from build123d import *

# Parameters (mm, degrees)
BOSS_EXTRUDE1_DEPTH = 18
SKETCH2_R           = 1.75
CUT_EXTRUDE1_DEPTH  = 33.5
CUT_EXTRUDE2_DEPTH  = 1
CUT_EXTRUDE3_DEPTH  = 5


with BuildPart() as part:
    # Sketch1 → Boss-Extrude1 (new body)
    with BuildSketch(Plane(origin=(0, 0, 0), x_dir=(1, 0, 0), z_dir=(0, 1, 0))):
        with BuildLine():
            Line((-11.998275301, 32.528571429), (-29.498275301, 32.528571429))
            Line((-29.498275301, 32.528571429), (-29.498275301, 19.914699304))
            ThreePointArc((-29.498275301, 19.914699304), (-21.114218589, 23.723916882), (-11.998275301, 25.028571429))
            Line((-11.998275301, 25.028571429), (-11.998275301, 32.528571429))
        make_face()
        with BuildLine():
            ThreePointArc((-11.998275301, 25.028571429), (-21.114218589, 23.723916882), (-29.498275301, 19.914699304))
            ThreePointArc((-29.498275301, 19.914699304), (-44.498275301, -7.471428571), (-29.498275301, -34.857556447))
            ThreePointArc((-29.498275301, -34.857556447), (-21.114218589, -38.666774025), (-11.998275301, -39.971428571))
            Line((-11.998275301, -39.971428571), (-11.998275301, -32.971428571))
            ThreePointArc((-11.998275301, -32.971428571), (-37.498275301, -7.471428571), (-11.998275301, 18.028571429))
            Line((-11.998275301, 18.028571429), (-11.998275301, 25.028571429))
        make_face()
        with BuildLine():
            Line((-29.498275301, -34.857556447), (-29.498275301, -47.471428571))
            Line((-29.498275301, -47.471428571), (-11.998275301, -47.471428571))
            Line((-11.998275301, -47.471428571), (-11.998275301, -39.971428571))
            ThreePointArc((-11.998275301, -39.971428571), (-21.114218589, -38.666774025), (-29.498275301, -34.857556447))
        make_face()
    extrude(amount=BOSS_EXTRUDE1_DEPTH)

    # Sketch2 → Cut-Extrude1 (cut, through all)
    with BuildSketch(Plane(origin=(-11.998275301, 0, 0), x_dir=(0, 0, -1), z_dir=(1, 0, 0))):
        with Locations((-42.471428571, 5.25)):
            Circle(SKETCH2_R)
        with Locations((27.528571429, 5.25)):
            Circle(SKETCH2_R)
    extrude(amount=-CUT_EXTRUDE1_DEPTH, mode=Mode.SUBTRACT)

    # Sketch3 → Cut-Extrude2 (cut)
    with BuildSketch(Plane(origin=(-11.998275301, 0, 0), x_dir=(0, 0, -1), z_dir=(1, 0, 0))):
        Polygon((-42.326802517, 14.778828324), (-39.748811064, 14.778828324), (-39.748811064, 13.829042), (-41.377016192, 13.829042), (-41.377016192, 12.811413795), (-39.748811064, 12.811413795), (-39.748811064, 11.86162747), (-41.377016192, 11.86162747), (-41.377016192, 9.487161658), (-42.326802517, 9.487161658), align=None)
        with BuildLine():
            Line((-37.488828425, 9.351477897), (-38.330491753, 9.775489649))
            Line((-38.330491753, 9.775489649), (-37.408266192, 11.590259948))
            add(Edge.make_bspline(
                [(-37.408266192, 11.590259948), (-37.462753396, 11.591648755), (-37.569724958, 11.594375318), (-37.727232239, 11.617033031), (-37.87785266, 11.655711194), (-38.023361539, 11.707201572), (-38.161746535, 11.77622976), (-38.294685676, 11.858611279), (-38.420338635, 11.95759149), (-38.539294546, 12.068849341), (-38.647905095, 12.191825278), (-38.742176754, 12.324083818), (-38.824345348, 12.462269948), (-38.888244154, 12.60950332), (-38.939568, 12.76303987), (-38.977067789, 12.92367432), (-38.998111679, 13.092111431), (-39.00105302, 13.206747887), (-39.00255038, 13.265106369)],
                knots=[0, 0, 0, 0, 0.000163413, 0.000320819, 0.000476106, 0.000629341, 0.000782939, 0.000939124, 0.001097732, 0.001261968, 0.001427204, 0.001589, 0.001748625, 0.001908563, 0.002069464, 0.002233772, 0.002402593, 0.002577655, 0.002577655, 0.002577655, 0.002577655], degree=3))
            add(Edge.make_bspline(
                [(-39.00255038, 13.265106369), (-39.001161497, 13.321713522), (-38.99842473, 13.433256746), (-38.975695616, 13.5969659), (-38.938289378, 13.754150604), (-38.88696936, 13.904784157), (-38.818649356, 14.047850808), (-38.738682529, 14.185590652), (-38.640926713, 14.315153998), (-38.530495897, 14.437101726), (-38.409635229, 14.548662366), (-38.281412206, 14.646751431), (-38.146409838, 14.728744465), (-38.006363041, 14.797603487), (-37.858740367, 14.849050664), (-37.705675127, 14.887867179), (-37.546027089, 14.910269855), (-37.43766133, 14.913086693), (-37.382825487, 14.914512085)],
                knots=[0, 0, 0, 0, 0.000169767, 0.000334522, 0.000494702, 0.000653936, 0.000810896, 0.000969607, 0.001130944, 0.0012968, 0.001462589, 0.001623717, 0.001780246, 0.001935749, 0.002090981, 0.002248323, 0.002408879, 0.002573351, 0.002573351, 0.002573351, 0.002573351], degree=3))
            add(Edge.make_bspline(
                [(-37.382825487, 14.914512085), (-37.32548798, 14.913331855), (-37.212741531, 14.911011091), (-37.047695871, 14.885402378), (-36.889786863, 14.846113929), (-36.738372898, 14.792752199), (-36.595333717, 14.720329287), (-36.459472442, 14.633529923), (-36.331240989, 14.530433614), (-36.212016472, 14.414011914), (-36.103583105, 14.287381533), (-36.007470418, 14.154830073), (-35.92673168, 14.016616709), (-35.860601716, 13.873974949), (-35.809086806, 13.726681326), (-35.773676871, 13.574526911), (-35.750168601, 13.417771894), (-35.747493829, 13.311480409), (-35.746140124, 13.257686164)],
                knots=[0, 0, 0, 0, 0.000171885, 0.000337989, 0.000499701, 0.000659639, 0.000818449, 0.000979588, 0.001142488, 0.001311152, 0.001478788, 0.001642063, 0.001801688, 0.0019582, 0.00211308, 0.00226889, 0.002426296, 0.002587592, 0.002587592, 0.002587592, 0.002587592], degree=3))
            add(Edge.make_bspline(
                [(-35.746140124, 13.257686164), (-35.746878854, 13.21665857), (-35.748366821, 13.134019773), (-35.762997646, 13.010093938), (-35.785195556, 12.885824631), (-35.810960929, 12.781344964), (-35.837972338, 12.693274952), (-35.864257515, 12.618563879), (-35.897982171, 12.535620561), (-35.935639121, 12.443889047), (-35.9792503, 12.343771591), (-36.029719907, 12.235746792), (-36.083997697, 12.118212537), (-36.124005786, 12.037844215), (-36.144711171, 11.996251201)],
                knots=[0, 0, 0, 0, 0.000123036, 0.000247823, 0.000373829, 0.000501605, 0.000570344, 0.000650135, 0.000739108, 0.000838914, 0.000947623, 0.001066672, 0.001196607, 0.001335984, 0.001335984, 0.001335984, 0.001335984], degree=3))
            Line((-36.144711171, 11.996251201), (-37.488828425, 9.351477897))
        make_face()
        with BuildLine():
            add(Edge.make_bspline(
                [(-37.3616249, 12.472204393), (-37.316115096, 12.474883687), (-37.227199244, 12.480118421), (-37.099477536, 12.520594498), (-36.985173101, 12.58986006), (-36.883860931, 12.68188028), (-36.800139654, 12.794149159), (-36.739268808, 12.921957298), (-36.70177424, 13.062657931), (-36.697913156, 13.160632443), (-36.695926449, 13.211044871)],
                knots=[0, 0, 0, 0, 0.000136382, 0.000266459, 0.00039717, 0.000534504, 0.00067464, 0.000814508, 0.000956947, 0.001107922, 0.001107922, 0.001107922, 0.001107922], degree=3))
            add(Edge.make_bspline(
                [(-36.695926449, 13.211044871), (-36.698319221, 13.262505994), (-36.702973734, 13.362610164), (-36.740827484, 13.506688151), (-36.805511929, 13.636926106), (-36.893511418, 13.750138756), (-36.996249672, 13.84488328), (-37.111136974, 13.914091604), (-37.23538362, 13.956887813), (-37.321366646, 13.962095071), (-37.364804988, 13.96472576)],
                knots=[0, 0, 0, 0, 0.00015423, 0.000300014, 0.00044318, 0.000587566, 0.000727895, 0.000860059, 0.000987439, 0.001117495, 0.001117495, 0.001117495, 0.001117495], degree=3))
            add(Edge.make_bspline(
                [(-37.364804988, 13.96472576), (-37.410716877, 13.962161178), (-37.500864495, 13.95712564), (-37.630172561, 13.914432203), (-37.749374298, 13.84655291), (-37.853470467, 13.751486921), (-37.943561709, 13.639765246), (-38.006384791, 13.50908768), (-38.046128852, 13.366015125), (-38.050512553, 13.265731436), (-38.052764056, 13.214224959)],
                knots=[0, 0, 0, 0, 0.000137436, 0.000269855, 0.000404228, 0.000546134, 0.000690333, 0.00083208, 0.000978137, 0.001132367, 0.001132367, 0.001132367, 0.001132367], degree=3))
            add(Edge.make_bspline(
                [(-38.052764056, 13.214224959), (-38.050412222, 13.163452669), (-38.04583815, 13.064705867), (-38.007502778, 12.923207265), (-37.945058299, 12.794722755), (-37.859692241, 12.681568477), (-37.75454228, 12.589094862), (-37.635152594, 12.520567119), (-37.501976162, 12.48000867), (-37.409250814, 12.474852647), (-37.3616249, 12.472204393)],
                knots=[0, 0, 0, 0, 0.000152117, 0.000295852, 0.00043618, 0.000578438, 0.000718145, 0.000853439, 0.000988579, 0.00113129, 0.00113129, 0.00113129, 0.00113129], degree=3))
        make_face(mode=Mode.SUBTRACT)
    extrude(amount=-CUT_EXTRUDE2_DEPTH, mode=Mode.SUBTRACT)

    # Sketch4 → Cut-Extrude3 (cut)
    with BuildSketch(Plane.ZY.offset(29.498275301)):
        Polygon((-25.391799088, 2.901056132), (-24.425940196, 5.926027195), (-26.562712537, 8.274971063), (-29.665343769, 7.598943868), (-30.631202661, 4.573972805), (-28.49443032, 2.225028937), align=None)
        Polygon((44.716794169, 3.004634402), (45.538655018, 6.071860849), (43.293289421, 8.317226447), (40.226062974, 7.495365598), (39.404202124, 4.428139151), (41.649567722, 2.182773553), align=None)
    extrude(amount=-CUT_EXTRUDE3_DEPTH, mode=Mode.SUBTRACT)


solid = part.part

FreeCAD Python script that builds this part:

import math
import FreeCAD as App
import Part
import Sketcher
from FreeCAD import Vector
Q = App.Units.Quantity

doc = App.newDocument("Part")
body = doc.addObject("PartDesign::Body", "Body")

# Sketch on XZ plane
sketch1 = doc.addObject("Sketcher::SketchObject", "Sketch")
body.addObject(sketch1)
sketch1.AttachmentSupport = (doc.XZ_Plane, [""])
sketch1.MapMode = "FlatFace"
sketch1.addGeometry([
    Part.LineSegment(Vector(-12, -33, 0), Vector(-29, -33, 0)),  # 0
    Part.LineSegment(Vector(-29, -33, 0), Vector(-29, -20, 0)),  # 1
    Part.ArcOfCircle(Part.Circle(Vector(-12, 7, 0), Vector(0, 0, 1), 32), math.radians(123), math.radians(237)),  # 2
    Part.LineSegment(Vector(-29, 35, 0), Vector(-29, 47, 0)),  # 3
    Part.LineSegment(Vector(-29, 47, 0), Vector(-12, 47, 0)),  # 4
    Part.LineSegment(Vector(-12, 47, 0), Vector(-12, 33, 0)),  # 5
    Part.ArcOfCircle(Part.Circle(Vector(-12, 7, 0), Vector(0, 0, 1), 26), math.radians(90), math.radians(270)),  # 6
    Part.LineSegment(Vector(-12, -18, 0), Vector(-12, -33, 0)),  # 7
], False)
sketch1.addConstraint([
    Sketcher.Constraint("Coincident", 0, 2, 1, 1),
    Sketcher.Constraint("Coincident", 1, 2, 2, 2),
    Sketcher.Constraint("Coincident", 2, 1, 3, 1),
    Sketcher.Constraint("Coincident", 3, 2, 4, 1),
    Sketcher.Constraint("Coincident", 4, 2, 5, 1),
    Sketcher.Constraint("Coincident", 5, 2, 6, 1),
    Sketcher.Constraint("Coincident", 6, 2, 7, 1),
    Sketcher.Constraint("Coincident", 7, 2, 0, 1),
    Sketcher.Constraint("Horizontal", 0),
    Sketcher.Constraint("Vertical", 1),
    Sketcher.Constraint("Vertical", 3),
    Sketcher.Constraint("Horizontal", 4),
    Sketcher.Constraint("Vertical", 5),
    Sketcher.Constraint("Vertical", 7),
    Sketcher.Constraint("Coincident", 6, 3, 2, 3),
    Sketcher.Constraint("Vertical", 1, 2, 2, 1),
    Sketcher.Constraint("Vertical", 6, 3, 4, 2),
    Sketcher.Constraint("Vertical", 5, 2, 6, 2),
    Sketcher.Constraint("Equal", 1, 3),
    Sketcher.Constraint("Radius", 2, Q("32.5 mm")),
    Sketcher.Constraint("Radius", 6, Q("25.5 mm")),
    Sketcher.Constraint("DistanceX", 0, 2, 0, 1, Q("17.5 mm")),
    Sketcher.Constraint("DistanceY", 5, 2, 5, 1, Q("14.5 mm")),
    Sketcher.Constraint("DistanceY", 1, 2, -1, 1, Q("19.914699 mm")),
    Sketcher.Constraint("DistanceX", 2, 3, -1, 1, Q("11.998275 mm")),
])
pad1 = doc.addObject("PartDesign::Pad", "Pad")
body.addObject(pad1)
pad1.Profile = sketch1
pad1.Length = 18
pad1.Reversed = True

# Sketch on YZ plane
sketch2 = doc.addObject("Sketcher::SketchObject", "Sketch001")
body.addObject(sketch2)
sketch2.AttachmentSupport = (doc.YZ_Plane, [""])
sketch2.MapMode = "FlatFace"
sketch2.AttachmentOffset = App.Placement(Vector(0, 0, -11.998275), App.Rotation())
sketch2.addGeometry([
    Part.Circle(Vector(5.2, 42.5, 0), Vector(0, 0, 1), 1.8),
    Part.Circle(Vector(5.2, -27.5, 0), Vector(0, 0, 1), 1.8),
], False)
sketch2.addConstraint([
    Sketcher.Constraint("Equal", 0, 1),
    Sketcher.Constraint("Vertical", 0, 3, 1, 3),
    Sketcher.Constraint("Diameter", 0, Q("3.5 mm")),
    Sketcher.Constraint("DistanceY", 1, 3, 0, 3, Q("70 mm")),
    Sketcher.Constraint("DistanceX", -1, 1, 0, 3, Q("5.25 mm")),
    Sketcher.Constraint("DistanceY", -1, 1, 0, 3, Q("42.471429 mm")),
])
pocket1 = doc.addObject("PartDesign::Pocket", "Pocket")
body.addObject(pocket1)
pocket1.Profile = sketch2
pocket1.Type = "ThroughAll"

# Sketch on YZ plane
sketch3 = doc.addObject("Sketcher::SketchObject", "Sketch002")
body.addObject(sketch3)
sketch3.AttachmentSupport = (doc.YZ_Plane, [""])
sketch3.MapMode = "FlatFace"
sketch3.AttachmentOffset = App.Placement(Vector(0, 0, -11.998275), App.Rotation())
sketch3.addGeometry([
    Part.LineSegment(Vector(14.778828, 39.748811, 0), Vector(14.778828, 42.326803, 0)),  # 0
    Part.LineSegment(Vector(14.778828, 42.326803, 0), Vector(9.487162, 42.326803, 0)),  # 1
    Part.LineSegment(Vector(9.487162, 42.326803, 0), Vector(9.487162, 41.377016, 0)),  # 2
    Part.LineSegment(Vector(9.487162, 41.377016, 0), Vector(11.861627, 41.377016, 0)),  # 3
    Part.LineSegment(Vector(11.861627, 41.377016, 0), Vector(11.861627, 39.748811, 0)),  # 4
    Part.LineSegment(Vector(11.861627, 39.748811, 0), Vector(12.811414, 39.748811, 0)),  # 5
    Part.LineSegment(Vector(12.811414, 39.748811, 0), Vector(12.811414, 41.377016, 0)),  # 6
    Part.LineSegment(Vector(12.811414, 41.377016, 0), Vector(13.829042, 41.377016, 0)),  # 7
    Part.LineSegment(Vector(13.829042, 41.377016, 0), Vector(13.829042, 39.748811, 0)),  # 8
    Part.LineSegment(Vector(13.829042, 39.748811, 0), Vector(14.778828, 39.748811, 0)),  # 9
    Part.LineSegment(Vector(9.77549, 38.330492, 0), Vector(9.351478, 37.488828, 0)),  # 10
    Part.LineSegment(Vector(9.351478, 37.488828, 0), Vector(11.996251, 36.144711, 0)),  # 11
    Part.BSplineCurve([Vector(13.257686, 35.74614, 0), Vector(13.216659, 35.746879, 0), Vector(13.13402, 35.748367, 0), Vector(13.010094, 35.762998, 0), Vector(12.885825, 35.785196, 0), Vector(12.781345, 35.810961, 0), Vector(12.693275, 35.837972, 0), Vector(12.618564, 35.864258, 0), Vector(12.535621, 35.897982, 0), Vector(12.443889, 35.935639, 0), Vector(12.343772, 35.97925, 0), Vector(12.235747, 36.02972, 0), Vector(12.118213, 36.083998, 0), Vector(12.037844, 36.124006, 0), Vector(11.996251, 36.144711, 0)], [4, 1, 1, 1, 1, 1, 1, 1, 1, 1, 1, 1, 4], [0, 0.000123036, 0.000247823, 0.000373829, 0.000501605, 0.000570344, 0.000650135, 0.000739108, 0.000838914, 0.000947623, 0.001066672, 0.001196607, 0.001335984], False, 3, [1, 1, 1, 1, 1, 1, 1, 1, 1, 1, 1, 1, 1, 1, 1], False),  # 12
    Part.BSplineCurve([Vector(14.914512, 37.382825, 0), Vector(14.913332, 37.325488, 0), Vector(14.911011, 37.212742, 0), Vector(14.885402, 37.047696, 0), Vector(14.846114, 36.889787, 0), Vector(14.792752, 36.738373, 0), Vector(14.720329, 36.595334, 0), Vector(14.63353, 36.459472, 0), Vector(14.530434, 36.331241, 0), Vector(14.414012, 36.212016, 0), Vector(14.287382, 36.103583, 0), Vector(14.15483, 36.00747, 0), Vector(14.016617, 35.926732, 0), Vector(13.873975, 35.860602, 0), Vector(13.726681, 35.809087, 0), Vector(13.574527, 35.773677, 0), Vector(13.417772, 35.750169, 0), Vector(13.31148, 35.747494, 0), Vector(13.257686, 35.74614, 0)], [4, 1, 1, 1, 1, 1, 1, 1, 1, 1, 1, 1, 1, 1, 1, 1, 4], [0, 0.000171885, 0.000337989, 0.000499701, 0.000659639, 0.000818449, 0.000979588, 0.001142488, 0.001311152, 0.001478788, 0.001642063, 0.001801688, 0.0019582, 0.00211308, 0.00226889, 0.002426296, 0.002587592], False, 3, [1, 1, 1, 1, 1, 1, 1, 1, 1, 1, 1, 1, 1, 1, 1, 1, 1, 1, 1], False),  # 13
    Part.BSplineCurve([Vector(13.265106, 39.00255, 0), Vector(13.321714, 39.001161, 0), Vector(13.433257, 38.998425, 0), Vector(13.596966, 38.975696, 0), Vector(13.754151, 38.938289, 0), Vector(13.904784, 38.886969, 0), Vector(14.047851, 38.818649, 0), Vector(14.185591, 38.738683, 0), Vector(14.315154, 38.640927, 0), Vector(14.437102, 38.530496, 0), Vector(14.548662, 38.409635, 0), Vector(14.646751, 38.281412, 0), Vector(14.728744, 38.14641, 0), Vector(14.797603, 38.006363, 0), Vector(14.849051, 37.85874, 0), Vector(14.887867, 37.705675, 0), Vector(14.91027, 37.546027, 0), Vector(14.913087, 37.437661, 0), Vector(14.914512, 37.382825, 0)], [4, 1, 1, 1, 1, 1, 1, 1, 1, 1, 1, 1, 1, 1, 1, 1, 4], [0, 0.000169767, 0.000334522, 0.000494702, 0.000653936, 0.000810896, 0.000969607, 0.001130944, 0.0012968, 0.001462589, 0.001623717, 0.001780246, 0.001935749, 0.002090981, 0.002248323, 0.002408879, 0.002573351], False, 3, [1, 1, 1, 1, 1, 1, 1, 1, 1, 1, 1, 1, 1, 1, 1, 1, 1, 1, 1], False),  # 14
    Part.BSplineCurve([Vector(11.59026, 37.408266, 0), Vector(11.591649, 37.462753, 0), Vector(11.594375, 37.569725, 0), Vector(11.617033, 37.727232, 0), Vector(11.655711, 37.877853, 0), Vector(11.707202, 38.023362, 0), Vector(11.77623, 38.161747, 0), Vector(11.858611, 38.294686, 0), Vector(11.957591, 38.420339, 0), Vector(12.068849, 38.539295, 0), Vector(12.191825, 38.647905, 0), Vector(12.324084, 38.742177, 0), Vector(12.46227, 38.824345, 0), Vector(12.609503, 38.888244, 0), Vector(12.76304, 38.939568, 0), Vector(12.923674, 38.977068, 0), Vector(13.092111, 38.998112, 0), Vector(13.206748, 39.001053, 0), Vector(13.265106, 39.00255, 0)], [4, 1, 1, 1, 1, 1, 1, 1, 1, 1, 1, 1, 1, 1, 1, 1, 4], [0, 0.000163413, 0.000320819, 0.000476106, 0.000629341, 0.000782939, 0.000939124, 0.001097732, 0.001261968, 0.001427204, 0.001589, 0.001748625, 0.001908563, 0.002069464, 0.002233772, 0.002402593, 0.002577655], False, 3, [1, 1, 1, 1, 1, 1, 1, 1, 1, 1, 1, 1, 1, 1, 1, 1, 1, 1, 1], False),  # 15
    Part.LineSegment(Vector(11.59026, 37.408266, 0), Vector(9.77549, 38.330492, 0)),  # 16
    Part.BSplineCurve([Vector(13.214225, 38.052764, 0), Vector(13.163453, 38.050412, 0), Vector(13.064706, 38.045838, 0), Vector(12.923207, 38.007503, 0), Vector(12.794723, 37.945058, 0), Vector(12.681568, 37.859692, 0), Vector(12.589095, 37.754542, 0), Vector(12.520567, 37.635153, 0), Vector(12.480009, 37.501976, 0), Vector(12.474853, 37.409251, 0), Vector(12.472204, 37.361625, 0)], [4, 1, 1, 1, 1, 1, 1, 1, 4], [0, 0.000152117, 0.000295852, 0.00043618, 0.000578438, 0.000718145, 0.000853439, 0.000988579, 0.00113129], False, 3, [1, 1, 1, 1, 1, 1, 1, 1, 1, 1, 1], False),  # 17
    Part.BSplineCurve([Vector(13.964726, 37.364805, 0), Vector(13.962161, 37.410717, 0), Vector(13.957126, 37.500864, 0), Vector(13.914432, 37.630173, 0), Vector(13.846553, 37.749374, 0), Vector(13.751487, 37.85347, 0), Vector(13.639765, 37.943562, 0), Vector(13.509088, 38.006385, 0), Vector(13.366015, 38.046129, 0), Vector(13.265731, 38.050513, 0), Vector(13.214225, 38.052764, 0)], [4, 1, 1, 1, 1, 1, 1, 1, 4], [0, 0.000137436, 0.000269855, 0.000404228, 0.000546134, 0.000690333, 0.00083208, 0.000978137, 0.001132367], False, 3, [1, 1, 1, 1, 1, 1, 1, 1, 1, 1, 1], False),  # 18
    Part.BSplineCurve([Vector(13.211045, 36.695926, 0), Vector(13.262506, 36.698319, 0), Vector(13.36261, 36.702974, 0), Vector(13.506688, 36.740827, 0), Vector(13.636926, 36.805512, 0), Vector(13.750139, 36.893511, 0), Vector(13.844883, 36.99625, 0), Vector(13.914092, 37.111137, 0), Vector(13.956888, 37.235384, 0), Vector(13.962095, 37.321367, 0), Vector(13.964726, 37.364805, 0)], [4, 1, 1, 1, 1, 1, 1, 1, 4], [0, 0.00015423, 0.000300014, 0.00044318, 0.000587566, 0.000727895, 0.000860059, 0.000987439, 0.001117495], False, 3, [1, 1, 1, 1, 1, 1, 1, 1, 1, 1, 1], False),  # 19
    Part.BSplineCurve([Vector(12.472204, 37.361625, 0), Vector(12.474884, 37.316115, 0), Vector(12.480118, 37.227199, 0), Vector(12.520594, 37.099478, 0), Vector(12.58986, 36.985173, 0), Vector(12.68188, 36.883861, 0), Vector(12.794149, 36.80014, 0), Vector(12.921957, 36.739269, 0), Vector(13.062658, 36.701774, 0), Vector(13.160632, 36.697913, 0), Vector(13.211045, 36.695926, 0)], [4, 1, 1, 1, 1, 1, 1, 1, 4], [0, 0.000136382, 0.000266459, 0.00039717, 0.000534504, 0.00067464, 0.000814508, 0.000956947, 0.001107922], False, 3, [1, 1, 1, 1, 1, 1, 1, 1, 1, 1, 1], False),  # 20
], False)
sketch3.addConstraint([
    Sketcher.Constraint("Block", 12),
    Sketcher.Constraint("Block", 13),
    Sketcher.Constraint("Block", 14),
    Sketcher.Constraint("Block", 15),
    Sketcher.Constraint("Block", 17),
    Sketcher.Constraint("Block", 18),
    Sketcher.Constraint("Block", 19),
    Sketcher.Constraint("Block", 20),
    Sketcher.Constraint("Coincident", 0, 2, 1, 1),
    Sketcher.Constraint("Coincident", 1, 2, 2, 1),
    Sketcher.Constraint("Coincident", 2, 2, 3, 1),
    Sketcher.Constraint("Coincident", 3, 2, 4, 1),
    Sketcher.Constraint("Coincident", 4, 2, 5, 1),
    Sketcher.Constraint("Coincident", 5, 2, 6, 1),
    Sketcher.Constraint("Coincident", 6, 2, 7, 1),
    Sketcher.Constraint("Coincident", 7, 2, 8, 1),
    Sketcher.Constraint("Coincident", 8, 2, 9, 1),
    Sketcher.Constraint("Coincident", 9, 2, 0, 1),
    Sketcher.Constraint("Coincident", 10, 2, 11, 1),
    Sketcher.Constraint("Coincident", 11, 2, 12, 2),
    Sketcher.Constraint("Coincident", 15, 1, 16, 1),
    Sketcher.Constraint("Coincident", 16, 2, 10, 1),
    Sketcher.Constraint("Vertical", 0),
    Sketcher.Constraint("Horizontal", 1),
    Sketcher.Constraint("Vertical", 2),
    Sketcher.Constraint("Horizontal", 3),
    Sketcher.Constraint("Vertical", 4),
    Sketcher.Constraint("Horizontal", 5),
    Sketcher.Constraint("Vertical", 6),
    Sketcher.Constraint("Horizontal", 7),
    Sketcher.Constraint("Vertical", 8),
    Sketcher.Constraint("Horizontal", 9),
    Sketcher.Constraint("Horizontal", 3, 2, 6, 2),
    Sketcher.Constraint("Horizontal", 5, 2, 8, 2),
    Sketcher.Constraint("Equal", 5, 9),
    Sketcher.Constraint("Equal", 9, 2),
    Sketcher.Constraint("DistanceX", 7, 1, 7, 2, Q("1.017628 mm")),
    Sketcher.Constraint("DistanceY", 0, 1, 0, 2, Q("2.577991 mm")),
    Sketcher.Constraint("DistanceX", 3, 2, 0, 2, Q("2.917201 mm")),
    Sketcher.Constraint("DistanceY", 11, 2, 4, 2, Q("3.6041 mm")),
    Sketcher.Constraint("Distance", 11, Q("2.966728 mm")),
    Sketcher.Constraint("DistanceX", 1, 2, 1, 1, Q("5.291667 mm")),
    Sketcher.Constraint("DistanceX", -1, 1, 0, 2, Q("14.778828 mm")),
    Sketcher.Constraint("DistanceY", -1, 1, 10, 2, Q("37.488828 mm")),
    Sketcher.Constraint("DistanceX", -1, 1, 16, 2, Q("9.77549 mm")),
    Sketcher.Constraint("DistanceY", -1, 1, 16, 2, Q("38.330492 mm")),
])
pocket2 = doc.addObject("PartDesign::Pocket", "Pocket001")
body.addObject(pocket2)
pocket2.Profile = sketch3
pocket2.Length = 1

# Sketch on YZ plane
sketch4 = doc.addObject("Sketcher::SketchObject", "Sketch003")
body.addObject(sketch4)
sketch4.AttachmentSupport = (doc.YZ_Plane, [""])
sketch4.MapMode = "FlatFace"
sketch4.AttachmentOffset = App.Placement(Vector(0, 0, -29.498275), App.Rotation())
sketch4.addGeometry([
    Part.LineSegment(Vector(2.9, -25.4, 0), Vector(5.9, -24.4, 0)),  # 0
    Part.LineSegment(Vector(5.9, -24.4, 0), Vector(8.3, -26.6, 0)),  # 1
    Part.LineSegment(Vector(8.3, -26.6, 0), Vector(7.6, -29.7, 0)),  # 2
    Part.LineSegment(Vector(7.6, -29.7, 0), Vector(4.6, -30.6, 0)),  # 3
    Part.LineSegment(Vector(4.6, -30.6, 0), Vector(2.2, -28.5, 0)),  # 4
    Part.LineSegment(Vector(2.2, -28.5, 0), Vector(2.9, -25.4, 0)),  # 5
    Part.LineSegment(Vector(3, 44.7, 0), Vector(6.1, 45.5, 0)),  # 6
    Part.LineSegment(Vector(6.1, 45.5, 0), Vector(8.3, 43.3, 0)),  # 7
    Part.LineSegment(Vector(8.3, 43.3, 0), Vector(7.5, 40.2, 0)),  # 8
    Part.LineSegment(Vector(7.5, 40.2, 0), Vector(4.4, 39.4, 0)),  # 9
    Part.LineSegment(Vector(4.4, 39.4, 0), Vector(2.2, 41.6, 0)),  # 10
    Part.LineSegment(Vector(2.2, 41.6, 0), Vector(3, 44.7, 0)),  # 11
], False)
sketch4.addConstraint([
    Sketcher.Constraint("Coincident", 0, 2, 1, 1),
    Sketcher.Constraint("Coincident", 1, 2, 2, 1),
    Sketcher.Constraint("Coincident", 2, 2, 3, 1),
    Sketcher.Constraint("Coincident", 3, 2, 4, 1),
    Sketcher.Constraint("Coincident", 4, 2, 5, 1),
    Sketcher.Constraint("Coincident", 5, 2, 0, 1),
    Sketcher.Constraint("Coincident", 6, 2, 7, 1),
    Sketcher.Constraint("Coincident", 7, 2, 8, 1),
    Sketcher.Constraint("Coincident", 8, 2, 9, 1),
    Sketcher.Constraint("Coincident", 9, 2, 10, 1),
    Sketcher.Constraint("Coincident", 10, 2, 11, 1),
    Sketcher.Constraint("Coincident", 11, 2, 6, 1),
    Sketcher.Constraint("Parallel", 0, 3),
    Sketcher.Constraint("Parallel", 1, 4),
    Sketcher.Constraint("Parallel", 2, 5),
    Sketcher.Constraint("Parallel", 6, 9),
    Sketcher.Constraint("Parallel", 7, 10),
    Sketcher.Constraint("Parallel", 8, 11),
    Sketcher.Constraint("Equal", 0, 1),
    Sketcher.Constraint("Equal", 1, 2),
    Sketcher.Constraint("Equal", 2, 3),
    Sketcher.Constraint("Equal", 5, 6),
    Sketcher.Constraint("Equal", 6, 7),
    Sketcher.Constraint("Equal", 7, 8),
    Sketcher.Constraint("Equal", 8, 9),
    Sketcher.Constraint("Angle", 6, Q("15 deg")),
    Sketcher.Constraint("Angle", 7, Q("-45 deg")),
    Sketcher.Constraint("Angle", 8, Q("-105 deg")),
    Sketcher.Constraint("DistanceX", 3, 2, 1, 2, Q("3.700998 mm")),
    Sketcher.Constraint("DistanceY", 2, 2, 6, 2, Q("75.203999 mm")),
    Sketcher.Constraint("DistanceY", 1, 2, 7, 2, Q("69.856002 mm")),
    Sketcher.Constraint("DistanceY", 5, 2, 9, 2, Q("64.796001 mm")),
    Sketcher.Constraint("DistanceY", 5, 2, -1, 1, Q("25.391799 mm")),
    Sketcher.Constraint("DistanceX", 0, 2, 7, 2, Q("2.391199 mm")),
    Sketcher.Constraint("DistanceY", 0, 2, -1, 1, Q("24.42594 mm")),
    Sketcher.Constraint("DistanceX", -1, 1, 1, 2, Q("8.274971 mm")),
])
pocket3 = doc.addObject("PartDesign::Pocket", "Pocket002")
body.addObject(pocket3)
pocket3.Profile = sketch4
pocket3.Length = 5
pocket3.Reversed = True

doc.recompute()
